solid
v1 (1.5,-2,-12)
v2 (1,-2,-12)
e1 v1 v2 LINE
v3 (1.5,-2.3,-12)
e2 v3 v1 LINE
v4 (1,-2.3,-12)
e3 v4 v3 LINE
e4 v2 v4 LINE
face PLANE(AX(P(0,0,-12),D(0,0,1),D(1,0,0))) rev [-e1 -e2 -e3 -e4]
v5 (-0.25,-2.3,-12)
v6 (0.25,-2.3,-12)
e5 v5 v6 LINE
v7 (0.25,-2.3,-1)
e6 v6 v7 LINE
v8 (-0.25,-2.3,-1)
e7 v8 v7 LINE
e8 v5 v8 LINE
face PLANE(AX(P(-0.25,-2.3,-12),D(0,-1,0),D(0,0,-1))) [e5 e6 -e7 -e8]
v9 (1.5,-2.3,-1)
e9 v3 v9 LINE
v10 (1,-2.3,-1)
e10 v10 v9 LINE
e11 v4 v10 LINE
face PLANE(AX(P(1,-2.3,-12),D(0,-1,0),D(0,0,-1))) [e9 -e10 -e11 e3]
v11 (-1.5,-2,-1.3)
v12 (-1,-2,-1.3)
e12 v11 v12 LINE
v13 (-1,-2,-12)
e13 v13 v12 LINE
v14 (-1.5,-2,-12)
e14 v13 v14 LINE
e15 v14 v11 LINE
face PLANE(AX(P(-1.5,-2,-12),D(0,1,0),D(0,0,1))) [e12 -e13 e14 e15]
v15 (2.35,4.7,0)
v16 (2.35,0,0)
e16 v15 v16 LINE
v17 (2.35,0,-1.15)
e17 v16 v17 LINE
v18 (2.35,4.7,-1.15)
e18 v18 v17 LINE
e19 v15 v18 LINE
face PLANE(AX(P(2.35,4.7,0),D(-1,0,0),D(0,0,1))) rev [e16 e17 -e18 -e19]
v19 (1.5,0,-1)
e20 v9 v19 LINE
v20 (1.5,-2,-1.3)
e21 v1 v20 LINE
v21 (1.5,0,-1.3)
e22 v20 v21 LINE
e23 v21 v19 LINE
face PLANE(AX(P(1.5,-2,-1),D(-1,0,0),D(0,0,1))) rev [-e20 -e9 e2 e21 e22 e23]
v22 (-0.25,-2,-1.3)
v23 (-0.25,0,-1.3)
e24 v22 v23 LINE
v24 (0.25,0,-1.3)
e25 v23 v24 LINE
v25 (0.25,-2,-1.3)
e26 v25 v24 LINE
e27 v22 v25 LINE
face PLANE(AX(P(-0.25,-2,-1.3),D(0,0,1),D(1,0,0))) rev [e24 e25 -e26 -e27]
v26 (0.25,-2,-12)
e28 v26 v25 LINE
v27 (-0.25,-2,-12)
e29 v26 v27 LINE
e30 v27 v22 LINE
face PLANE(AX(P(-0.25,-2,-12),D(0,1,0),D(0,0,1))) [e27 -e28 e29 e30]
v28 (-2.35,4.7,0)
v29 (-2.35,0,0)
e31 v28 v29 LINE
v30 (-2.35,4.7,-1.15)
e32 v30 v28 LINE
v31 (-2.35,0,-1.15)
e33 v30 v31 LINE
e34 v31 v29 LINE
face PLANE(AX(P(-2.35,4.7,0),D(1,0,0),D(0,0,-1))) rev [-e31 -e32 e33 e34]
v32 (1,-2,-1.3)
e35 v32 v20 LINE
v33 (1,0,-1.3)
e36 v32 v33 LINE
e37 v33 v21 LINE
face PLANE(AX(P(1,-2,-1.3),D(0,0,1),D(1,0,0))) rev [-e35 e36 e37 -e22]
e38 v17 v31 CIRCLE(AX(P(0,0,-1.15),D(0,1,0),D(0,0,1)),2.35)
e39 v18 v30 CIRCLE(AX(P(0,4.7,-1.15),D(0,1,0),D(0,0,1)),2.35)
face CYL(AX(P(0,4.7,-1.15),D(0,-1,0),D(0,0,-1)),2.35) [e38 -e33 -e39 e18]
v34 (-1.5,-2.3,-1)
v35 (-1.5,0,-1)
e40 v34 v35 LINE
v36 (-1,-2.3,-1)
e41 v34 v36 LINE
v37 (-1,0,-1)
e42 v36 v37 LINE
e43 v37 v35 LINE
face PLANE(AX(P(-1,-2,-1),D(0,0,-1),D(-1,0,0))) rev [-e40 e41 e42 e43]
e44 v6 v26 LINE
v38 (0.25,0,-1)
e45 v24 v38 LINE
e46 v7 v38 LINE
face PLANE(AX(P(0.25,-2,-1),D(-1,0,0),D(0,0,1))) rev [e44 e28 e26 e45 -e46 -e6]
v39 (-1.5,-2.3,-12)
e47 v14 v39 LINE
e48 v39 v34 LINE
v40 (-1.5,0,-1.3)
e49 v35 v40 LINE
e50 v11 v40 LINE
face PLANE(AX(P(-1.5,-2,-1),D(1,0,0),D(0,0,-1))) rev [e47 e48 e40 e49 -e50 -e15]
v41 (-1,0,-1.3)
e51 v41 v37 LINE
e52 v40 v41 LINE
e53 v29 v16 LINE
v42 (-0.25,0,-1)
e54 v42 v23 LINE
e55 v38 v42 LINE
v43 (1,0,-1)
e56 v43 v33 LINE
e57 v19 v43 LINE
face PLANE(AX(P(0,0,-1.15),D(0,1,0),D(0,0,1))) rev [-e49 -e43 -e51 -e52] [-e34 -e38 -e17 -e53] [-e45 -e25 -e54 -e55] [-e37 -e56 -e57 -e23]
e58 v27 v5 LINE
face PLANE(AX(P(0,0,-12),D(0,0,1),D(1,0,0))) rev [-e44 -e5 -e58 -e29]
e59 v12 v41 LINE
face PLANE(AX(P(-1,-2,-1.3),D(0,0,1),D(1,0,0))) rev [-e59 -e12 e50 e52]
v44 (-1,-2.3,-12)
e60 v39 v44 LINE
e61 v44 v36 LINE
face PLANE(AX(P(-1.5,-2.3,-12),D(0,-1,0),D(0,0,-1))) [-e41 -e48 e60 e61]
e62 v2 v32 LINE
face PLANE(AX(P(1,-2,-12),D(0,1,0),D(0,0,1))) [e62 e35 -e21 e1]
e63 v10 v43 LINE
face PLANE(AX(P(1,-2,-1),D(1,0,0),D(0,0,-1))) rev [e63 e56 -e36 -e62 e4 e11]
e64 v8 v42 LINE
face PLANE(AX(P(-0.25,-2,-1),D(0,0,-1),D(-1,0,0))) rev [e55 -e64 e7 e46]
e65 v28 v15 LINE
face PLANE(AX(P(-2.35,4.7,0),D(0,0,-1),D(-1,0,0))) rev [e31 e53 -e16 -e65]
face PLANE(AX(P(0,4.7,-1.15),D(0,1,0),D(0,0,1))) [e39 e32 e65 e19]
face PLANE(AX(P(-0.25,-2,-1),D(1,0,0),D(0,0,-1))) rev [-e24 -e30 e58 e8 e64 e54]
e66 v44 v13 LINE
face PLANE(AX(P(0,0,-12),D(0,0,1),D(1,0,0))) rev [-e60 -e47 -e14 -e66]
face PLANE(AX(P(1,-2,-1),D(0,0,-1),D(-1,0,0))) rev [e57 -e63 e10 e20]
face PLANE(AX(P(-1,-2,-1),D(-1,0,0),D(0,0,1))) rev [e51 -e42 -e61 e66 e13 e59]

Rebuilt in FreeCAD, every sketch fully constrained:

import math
import FreeCAD as App
import Part
import Sketcher
from FreeCAD import Vector


def add_polygon(sketch, points):
    """Adds a closed chain of lines whose ends are joined by coincident constraints."""
    first, n = sketch.GeometryCount, len(points)
    for a, b in zip(points, points[1:] + points[:1]):
        sketch.addGeometry(Part.LineSegment(App.Vector(*a, 0), App.Vector(*b, 0)), False)
    for i in range(n):
        sketch.addConstraint(Sketcher.Constraint("Coincident", first + i, 2, first + (i + 1) % n, 1))

doc = App.newDocument("Part")
body = doc.addObject("PartDesign::Body", "Body")

# Sketch on XZ plane
sketch1 = doc.addObject("Sketcher::SketchObject", "Sketch")
body.addObject(sketch1)
sketch1.AttachmentSupport = (doc.XZ_Plane, [""])
sketch1.MapMode = "FlatFace"
sketch1.addGeometry([
    Part.LineSegment(Vector(-2.4, 0, 0), Vector(2.4, 0, 0)),
    Part.LineSegment(Vector(2.4, 0, 0), Vector(2.4, -1.1, 0)),
    Part.ArcOfCircle(Part.Circle(Vector(0, -1.1, 0), Vector(0, 0, 1), 2.4), math.radians(180), math.radians(360)),
    Part.LineSegment(Vector(-2.4, -1.1, 0), Vector(-2.4, 0, 0)),
], False)
sketch1.addConstraint([
    Sketcher.Constraint("Coincident", 0, 2, 1, 1),
    Sketcher.Constraint("Tangent", 1, 2, 2, 2),
    Sketcher.Constraint("Tangent", 2, 1, 3, 1),
    Sketcher.Constraint("Coincident", 3, 2, 0, 1),
    Sketcher.Constraint("Horizontal", 0),
    Sketcher.Constraint("Vertical", 1),
    Sketcher.Constraint("Vertical", 3),
    Sketcher.Constraint("Symmetric", 0, 2, 3, 2, -1, 1),
    Sketcher.Constraint("Radius", 2, 2.35),
    Sketcher.Constraint("DistanceY", 1, 2, 1, 1, 1.15),
])
pad1 = doc.addObject("PartDesign::Pad", "Pad")
body.addObject(pad1)
pad1.Profile = sketch1
pad1.Length = 4.7
pad1.Reversed = True

# Sketch on XZ plane
sketch2 = doc.addObject("Sketcher::SketchObject", "Sketch001")
body.addObject(sketch2)
sketch2.AttachmentSupport = (doc.XZ_Plane, [""])
sketch2.MapMode = "FlatFace"
add_polygon(sketch2, [(1, -1), (1, -1.3), (1.5, -1.3), (1.5, -1)])  # lines 0-3
add_polygon(sketch2, [(-0.25, -1), (-0.25, -1.3), (0.25, -1.3), (0.25, -1)])  # lines 4-7
add_polygon(sketch2, [(-1.5, -1), (-1.5, -1.3), (-1, -1.3), (-1, -1)])  # lines 8-11
sketch2.addConstraint([
    Sketcher.Constraint("Vertical", 0),
    Sketcher.Constraint("Horizontal", 1),
    Sketcher.Constraint("Vertical", 2),
    Sketcher.Constraint("Horizontal", 3),
    Sketcher.Constraint("Vertical", 4),
    Sketcher.Constraint("Horizontal", 5),
    Sketcher.Constraint("Vertical", 6),
    Sketcher.Constraint("Horizontal", 7),
    Sketcher.Constraint("Vertical", 8),
    Sketcher.Constraint("Horizontal", 9),
    Sketcher.Constraint("Vertical", 10),
    Sketcher.Constraint("Horizontal", 11),
    Sketcher.Constraint("Symmetric", 1, 2, 8, 2, -2),
    Sketcher.Constraint("Symmetric", 3, 2, 10, 2, -2),
    Sketcher.Constraint("Horizontal", 1, 2, 4, 2),
    Sketcher.Constraint("Horizontal", 3, 2, 6, 2),
    Sketcher.Constraint("Equal", 3, 5),
    Sketcher.Constraint("DistanceX", 1, 1, 1, 2, 0.5),
    Sketcher.Constraint("DistanceY", 0, 2, 0, 1, 0.3),
    Sketcher.Constraint("DistanceX", -1, 1, 0, 2, 1.0),
    Sketcher.Constraint("DistanceY", 2, 2, -1, 1, 1.0),
    Sketcher.Constraint("DistanceX", 4, 2, -1, 1, 0.25),
])
pad2 = doc.addObject("PartDesign::Pad", "Pad001")
body.addObject(pad2)
pad2.Profile = sketch2
pad2.Length = 2

# Sketch on XY plane
sketch3 = doc.addObject("Sketcher::SketchObject", "Sketch002")
body.addObject(sketch3)
sketch3.AttachmentSupport = (doc.XY_Plane, [""])
sketch3.MapMode = "FlatFace"
sketch3.AttachmentOffset = App.Placement(Vector(0, 0, -1), App.Rotation())
add_polygon(sketch3, [(-0.25, -2), (-0.25, -2.3), (0.25, -2.3), (0.25, -2)])  # lines 0-3
add_polygon(sketch3, [(-1.5, -2), (-1.5, -2.3), (-1, -2.3), (-1, -2)])  # lines 4-7
add_polygon(sketch3, [(1, -2), (1, -2.3), (1.5, -2.3), (1.5, -2)])  # lines 8-11
sketch3.addConstraint([
    Sketcher.Constraint("Vertical", 0),
    Sketcher.Constraint("Horizontal", 1),
    Sketcher.Constraint("Vertical", 2),
    Sketcher.Constraint("Horizontal", 3),
    Sketcher.Constraint("Vertical", 4),
    Sketcher.Constraint("Horizontal", 5),
    Sketcher.Constraint("Vertical", 6),
    Sketcher.Constraint("Horizontal", 7),
    Sketcher.Constraint("Vertical", 8),
    Sketcher.Constraint("Horizontal", 9),
    Sketcher.Constraint("Vertical", 10),
    Sketcher.Constraint("Horizontal", 11),
    Sketcher.Constraint("Symmetric", 5, 2, 8, 2, -2),
    Sketcher.Constraint("Symmetric", 7, 2, 10, 2, -2),
    Sketcher.Constraint("Horizontal", 1, 2, 4, 2),
    Sketcher.Constraint("Horizontal", 3, 2, 6, 2),
    Sketcher.Constraint("Equal", 3, 5),
    Sketcher.Constraint("DistanceX", 1, 1, 1, 2, 0.5),
    Sketcher.Constraint("DistanceY", 0, 2, 0, 1, 0.3),
    Sketcher.Constraint("DistanceY", 2, 2, -1, 1, 2.0),
    Sketcher.Constraint("DistanceX", 5, 2, -1, 1, 1.0),
    Sketcher.Constraint("DistanceX", 0, 2, -1, 1, 0.25),
])
pad3 = doc.addObject("PartDesign::Pad", "Pad002")
body.addObject(pad3)
pad3.Profile = sketch3
pad3.Length = 11
pad3.Reversed = True

doc.recompute()
